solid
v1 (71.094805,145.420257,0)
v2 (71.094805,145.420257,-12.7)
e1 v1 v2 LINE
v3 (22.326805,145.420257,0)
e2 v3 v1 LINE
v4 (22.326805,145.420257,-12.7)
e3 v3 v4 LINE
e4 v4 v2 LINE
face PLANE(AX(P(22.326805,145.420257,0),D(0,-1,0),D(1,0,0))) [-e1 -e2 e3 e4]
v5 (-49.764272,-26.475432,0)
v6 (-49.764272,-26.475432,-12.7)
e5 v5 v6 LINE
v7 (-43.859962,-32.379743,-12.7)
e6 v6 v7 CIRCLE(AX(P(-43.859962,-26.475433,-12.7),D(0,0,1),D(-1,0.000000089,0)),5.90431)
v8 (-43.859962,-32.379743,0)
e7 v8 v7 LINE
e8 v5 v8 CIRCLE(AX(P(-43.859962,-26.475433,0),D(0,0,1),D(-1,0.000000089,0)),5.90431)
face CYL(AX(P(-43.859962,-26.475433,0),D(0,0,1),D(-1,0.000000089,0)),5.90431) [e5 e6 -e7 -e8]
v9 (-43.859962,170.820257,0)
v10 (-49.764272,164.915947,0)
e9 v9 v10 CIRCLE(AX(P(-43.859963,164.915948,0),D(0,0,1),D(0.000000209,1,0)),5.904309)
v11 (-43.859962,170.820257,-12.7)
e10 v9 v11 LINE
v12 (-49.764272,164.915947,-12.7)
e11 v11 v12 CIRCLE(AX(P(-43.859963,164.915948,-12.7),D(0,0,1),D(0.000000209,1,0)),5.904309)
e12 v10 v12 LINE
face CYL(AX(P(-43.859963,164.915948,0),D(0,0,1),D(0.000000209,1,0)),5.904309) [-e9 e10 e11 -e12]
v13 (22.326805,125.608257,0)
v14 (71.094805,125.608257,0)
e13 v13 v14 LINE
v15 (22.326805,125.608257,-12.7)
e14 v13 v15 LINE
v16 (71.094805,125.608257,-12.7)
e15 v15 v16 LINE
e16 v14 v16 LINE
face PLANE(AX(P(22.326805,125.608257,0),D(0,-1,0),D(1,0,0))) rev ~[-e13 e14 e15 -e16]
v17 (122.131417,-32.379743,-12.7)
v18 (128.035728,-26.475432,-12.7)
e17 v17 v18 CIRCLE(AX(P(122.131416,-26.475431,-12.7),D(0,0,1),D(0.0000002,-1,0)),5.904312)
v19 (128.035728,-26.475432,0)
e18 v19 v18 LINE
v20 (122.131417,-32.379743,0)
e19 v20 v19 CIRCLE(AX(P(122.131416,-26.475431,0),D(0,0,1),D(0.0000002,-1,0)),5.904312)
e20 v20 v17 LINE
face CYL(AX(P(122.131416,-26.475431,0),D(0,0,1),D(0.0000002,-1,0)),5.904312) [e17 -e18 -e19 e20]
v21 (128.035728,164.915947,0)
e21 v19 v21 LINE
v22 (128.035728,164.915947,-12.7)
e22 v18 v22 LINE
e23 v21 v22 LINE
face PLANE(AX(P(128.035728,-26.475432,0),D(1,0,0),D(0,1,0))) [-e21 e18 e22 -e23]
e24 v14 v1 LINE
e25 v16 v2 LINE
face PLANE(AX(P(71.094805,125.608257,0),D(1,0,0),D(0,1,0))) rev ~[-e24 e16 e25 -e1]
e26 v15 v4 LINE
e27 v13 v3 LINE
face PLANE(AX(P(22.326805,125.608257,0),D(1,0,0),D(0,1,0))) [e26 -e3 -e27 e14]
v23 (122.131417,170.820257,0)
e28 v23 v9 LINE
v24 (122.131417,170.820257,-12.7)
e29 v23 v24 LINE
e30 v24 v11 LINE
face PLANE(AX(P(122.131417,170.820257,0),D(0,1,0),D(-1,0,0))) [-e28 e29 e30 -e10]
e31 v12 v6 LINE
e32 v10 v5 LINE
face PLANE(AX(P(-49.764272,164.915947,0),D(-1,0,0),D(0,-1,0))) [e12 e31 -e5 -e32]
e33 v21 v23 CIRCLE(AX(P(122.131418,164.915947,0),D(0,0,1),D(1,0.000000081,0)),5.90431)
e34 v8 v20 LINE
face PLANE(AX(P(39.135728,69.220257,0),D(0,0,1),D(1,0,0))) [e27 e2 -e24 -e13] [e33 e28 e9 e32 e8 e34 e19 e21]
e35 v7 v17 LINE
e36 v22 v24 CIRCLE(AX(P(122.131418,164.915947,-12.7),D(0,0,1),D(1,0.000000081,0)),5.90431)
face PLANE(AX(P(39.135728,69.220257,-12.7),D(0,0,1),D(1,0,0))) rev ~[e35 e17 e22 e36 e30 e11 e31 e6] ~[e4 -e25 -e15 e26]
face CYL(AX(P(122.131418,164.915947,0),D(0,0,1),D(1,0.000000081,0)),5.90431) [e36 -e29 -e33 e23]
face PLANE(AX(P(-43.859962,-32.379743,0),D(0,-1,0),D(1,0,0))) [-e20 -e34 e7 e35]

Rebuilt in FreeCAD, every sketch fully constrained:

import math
import FreeCAD as App
import Part
import Sketcher
from FreeCAD import Vector
Q = App.Units.Quantity


def add_polygon(sketch, points):
    """Adds a closed chain of lines whose ends are joined by coincident constraints."""
    first, n = sketch.GeometryCount, len(points)
    for a, b in zip(points, points[1:] + points[:1]):
        sketch.addGeometry(Part.LineSegment(App.Vector(*a, 0), App.Vector(*b, 0)), False)
    for i in range(n):
        sketch.addConstraint(Sketcher.Constraint("Coincident", first + i, 2, first + (i + 1) % n, 1))

doc = App.newDocument("Part")
params = doc.addObject("Spreadsheet::Sheet", "Params")
for row, (alias, value) in enumerate([
    ("sketch1_width", "1.92 in"),
    ("sketch1_height", "0.78 in"),
    ("pad1_length", "0.5 in"),
], start=1):
    params.set(f"A{row}", alias)
    params.set(f"B{row}", "=" + value)
    params.setAlias(f"B{row}", alias)

body = doc.addObject("PartDesign::Body", "Body")

# Sketch on XY plane
sketch1 = body.newObject("Sketcher::SketchObject", "Sketch")
sketch1.AttachmentSupport = (doc.getObject("XY_Plane"), [""])
sketch1.MapMode = "FlatFace"
sketch1.addGeometry(Part.LineSegment(Vector(122, 171, 0), Vector(-44, 171, 0)), False)  # 0
sketch1.addGeometry(Part.ArcOfCircle(Part.Circle(Vector(-44, 165, 0), Vector(0, 0, 1), 6), math.radians(90), math.radians(180)), False)  # 1
sketch1.addGeometry(Part.LineSegment(Vector(-50, 165, 0), Vector(-50, -26, 0)), False)  # 2
sketch1.addGeometry(Part.ArcOfCircle(Part.Circle(Vector(-44, -26, 0), Vector(0, 0, 1), 6), math.radians(180), math.radians(270)), False)  # 3
sketch1.addGeometry(Part.LineSegment(Vector(-44, -32, 0), Vector(122, -32, 0)), False)  # 4
sketch1.addGeometry(Part.ArcOfCircle(Part.Circle(Vector(122, -26, 0), Vector(0, 0, 1), 6), math.radians(-90), math.radians(0)), False)  # 5
sketch1.addGeometry(Part.LineSegment(Vector(128, -26, 0), Vector(128, 165, 0)), False)  # 6
sketch1.addGeometry(Part.ArcOfCircle(Part.Circle(Vector(122, 165, 0), Vector(0, 0, 1), 6), math.radians(0), math.radians(90)), False)  # 7
add_polygon(sketch1, [(71, 126), (22, 126), (22, 145), (71, 145)])  # lines 8-11
sketch1.addConstraint(Sketcher.Constraint("Tangent", 0, 2, 1, 1))
sketch1.addConstraint(Sketcher.Constraint("Tangent", 1, 2, 2, 1))
sketch1.addConstraint(Sketcher.Constraint("Tangent", 2, 2, 3, 1))
sketch1.addConstraint(Sketcher.Constraint("Tangent", 3, 2, 4, 1))
sketch1.addConstraint(Sketcher.Constraint("Tangent", 4, 2, 5, 1))
sketch1.addConstraint(Sketcher.Constraint("Tangent", 5, 2, 6, 1))
sketch1.addConstraint(Sketcher.Constraint("Tangent", 6, 2, 7, 1))
sketch1.addConstraint(Sketcher.Constraint("Tangent", 7, 2, 0, 1))
sketch1.addConstraint(Sketcher.Constraint("Horizontal", 0))
sketch1.addConstraint(Sketcher.Constraint("Vertical", 2))
sketch1.addConstraint(Sketcher.Constraint("Horizontal", 4))
sketch1.addConstraint(Sketcher.Constraint("Vertical", 6))
sketch1.addConstraint(Sketcher.Constraint("Horizontal", 8))
sketch1.addConstraint(Sketcher.Constraint("Vertical", 9))
sketch1.addConstraint(Sketcher.Constraint("Horizontal", 10))
sketch1.addConstraint(Sketcher.Constraint("Vertical", 11))
sketch1.addConstraint(Sketcher.Constraint("Equal", 1, 3))
sketch1.addConstraint(Sketcher.Constraint("Equal", 3, 5))
sketch1.addConstraint(Sketcher.Constraint("Equal", 5, 7))
sketch1.addConstraint(Sketcher.Constraint("DistanceX", 2, 2, 5, 2, Q("7 in")))
sketch1.addConstraint(Sketcher.Constraint("DistanceY", 9, 2, 0, 2, Q("1 in")))
sketch1.addConstraint(Sketcher.Constraint("DistanceX", 8, 2, 8, 1, Q("1.92 in")))
sketch1.addConstraint(Sketcher.Constraint("DistanceY", 9, 1, 9, 2, Q("0.78 in")))
sketch1.addConstraint(Sketcher.Constraint("Radius", 1, 5.904309))
sketch1.addConstraint(Sketcher.Constraint("DistanceY", 2, 2, 2, 1, 191.391379))
sketch1.addConstraint(Sketcher.Constraint("DistanceY", -1, 1, 1, 3, 164.915948))
sketch1.addConstraint(Sketcher.Constraint("DistanceX", 3, 3, -1, 1, 43.859962))
sketch1.addConstraint(Sketcher.Constraint("DistanceX", 1, 3, 8, 2, 66.186768))
sketch1.setExpression("Constraints[25]", "Params.sketch1_width")
sketch1.setExpression("Constraints[26]", "Params.sketch1_height")
pad1 = body.newObject("PartDesign::Pad", "Pad")
pad1.Profile = sketch1
pad1.setExpression("Length", "Params.pad1_length")
pad1.Reversed = True

doc.recompute()
